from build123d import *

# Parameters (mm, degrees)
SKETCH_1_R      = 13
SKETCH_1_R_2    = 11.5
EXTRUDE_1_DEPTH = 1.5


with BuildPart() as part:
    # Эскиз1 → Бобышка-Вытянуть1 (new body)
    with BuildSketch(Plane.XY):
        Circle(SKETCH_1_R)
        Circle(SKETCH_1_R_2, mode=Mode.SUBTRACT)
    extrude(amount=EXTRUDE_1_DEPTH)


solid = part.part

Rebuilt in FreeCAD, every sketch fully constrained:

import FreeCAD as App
import Part
import Sketcher
from FreeCAD import Vector
Q = App.Units.Quantity

doc = App.newDocument("Part")
body = doc.addObject("PartDesign::Body", "Body")

# Sketch on XY plane
sketch1 = doc.addObject("Sketcher::SketchObject", "Sketch")
body.addObject(sketch1)
sketch1.AttachmentSupport = (doc.XY_Plane, [""])
sketch1.MapMode = "FlatFace"
sketch1.addGeometry([
    Part.Circle(Vector(0, 0, 0), Vector(0, 0, 1), 13),
    Part.Circle(Vector(0, 0, 0), Vector(0, 0, 1), 12),
], False)
sketch1.addConstraint([
    Sketcher.Constraint("Coincident", 0, 3, -1, 1),
    Sketcher.Constraint("Coincident", 1, 3, -1, 1),
    Sketcher.Constraint("Diameter", 0, Q("26 mm")),
    Sketcher.Constraint("Diameter", 1, Q("23 mm")),
])
pad1 = doc.addObject("PartDesign::Pad", "Pad")
body.addObject(pad1)
pad1.Profile = sketch1
pad1.Length = 1.5

doc.recompute()
